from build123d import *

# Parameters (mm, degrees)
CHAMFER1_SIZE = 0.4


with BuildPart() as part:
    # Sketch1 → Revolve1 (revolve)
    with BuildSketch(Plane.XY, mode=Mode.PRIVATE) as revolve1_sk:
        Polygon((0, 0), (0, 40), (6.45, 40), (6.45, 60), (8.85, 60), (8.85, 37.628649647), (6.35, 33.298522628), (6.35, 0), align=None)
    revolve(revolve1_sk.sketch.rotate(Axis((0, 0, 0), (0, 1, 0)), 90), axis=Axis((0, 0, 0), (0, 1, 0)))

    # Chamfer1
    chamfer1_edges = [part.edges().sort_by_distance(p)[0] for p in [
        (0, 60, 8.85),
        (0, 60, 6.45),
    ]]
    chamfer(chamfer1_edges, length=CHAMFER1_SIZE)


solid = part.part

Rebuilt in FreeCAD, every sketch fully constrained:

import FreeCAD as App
import Part
import Sketcher
Q = App.Units.Quantity


def edges_at(feature, points):
    """Names of the edges that pass closest to the given points."""
    edges = feature.Shape.Edges
    near = lambda p: min(range(len(edges)), key=lambda i: edges[i].distToShape(Part.Vertex(*p))[0])
    return sorted({f"Edge{near(p) + 1}" for p in points})


def add_polygon(sketch, points):
    """Adds a closed chain of lines whose ends are joined by coincident constraints."""
    first, n = sketch.GeometryCount, len(points)
    for a, b in zip(points, points[1:] + points[:1]):
        sketch.addGeometry(Part.LineSegment(App.Vector(*a, 0), App.Vector(*b, 0)), False)
    for i in range(n):
        sketch.addConstraint(Sketcher.Constraint("Coincident", first + i, 2, first + (i + 1) % n, 1))

doc = App.newDocument("Part")
params = doc.addObject("Spreadsheet::Sheet", "Params")
for row, (alias, value) in enumerate([
    ("sketch1_height", "40 mm"),
    ("sketch1_height2", "20 mm"),
    ("sketch1_length", "5 mm"),
    ("sketch1_width", "2.4 mm"),
    ("sketch1_width2", "6.35 mm"),
    ("revolution_angle", "360 deg"),
    ("chamfer_size", "0.4 mm"),
], start=1):
    params.set(f"A{row}", alias)
    params.set(f"B{row}", "=" + value)
    params.setAlias(f"B{row}", alias)

body = doc.addObject("PartDesign::Body", "Body")

# Sketch on XY plane
sketch1 = doc.addObject("Sketcher::SketchObject", "Sketch")
body.addObject(sketch1)
sketch1.AttachmentSupport = (doc.XY_Plane, [""])
sketch1.MapMode = "FlatFace"
add_polygon(sketch1, [(0, 40), (0, 0), (6.35, 0), (6.35, 33.298523), (8.85, 37.62865), (8.85, 60), (6.45, 60), (6.45, 40)])  # lines 0-7
sketch1.addConstraint(Sketcher.Constraint("Vertical", 0))
sketch1.addConstraint(Sketcher.Constraint("Horizontal", 1))
sketch1.addConstraint(Sketcher.Constraint("Vertical", 2))
sketch1.addConstraint(Sketcher.Constraint("Vertical", 4))
sketch1.addConstraint(Sketcher.Constraint("Horizontal", 5))
sketch1.addConstraint(Sketcher.Constraint("Vertical", 6))
sketch1.addConstraint(Sketcher.Constraint("Horizontal", 7))
sketch1.addConstraint(Sketcher.Constraint("Coincident", 0, 2, -1, 1))
sketch1.addConstraint(Sketcher.Constraint("DistanceY", 0, 2, 0, 1, 40.0))
sketch1.addConstraint(Sketcher.Constraint("DistanceY", 6, 2, 6, 1, 20.0))
sketch1.addConstraint(Sketcher.Constraint("Angle", 3, Q("60 deg")))
sketch1.addConstraint(Sketcher.Constraint("Distance", 3, 5.0))
sketch1.addConstraint(Sketcher.Constraint("DistanceX", 5, 2, 5, 1, 2.4))
sketch1.addConstraint(Sketcher.Constraint("DistanceX", 1, 1, 1, 2, 6.35))
sketch1.addConstraint(Sketcher.Constraint("DistanceY", 4, 1, 4, 2, 22.37135))
sketch1.setExpression("Constraints[16]", "Params.sketch1_height")
sketch1.setExpression("Constraints[17]", "Params.sketch1_height2")
sketch1.setExpression("Constraints[19]", "Params.sketch1_length")
sketch1.setExpression("Constraints[20]", "Params.sketch1_width")
sketch1.setExpression("Constraints[21]", "Params.sketch1_width2")
revolution = doc.addObject("PartDesign::Revolution", "Revolution")
body.addObject(revolution)
revolution.Profile = sketch1
revolution.ReferenceAxis = (sketch1, ["V_Axis"])
revolution.setExpression("Angle", "Params.revolution_angle")
doc.recompute()

chamfer = doc.addObject("PartDesign::Chamfer", "Chamfer")
body.addObject(chamfer)
chamfer.Base = (revolution, edges_at(revolution, [(0, 60, 8.85), (0, 60, 6.45)]))
chamfer.setExpression("Size", "Params.chamfer_size")

doc.recompute()
